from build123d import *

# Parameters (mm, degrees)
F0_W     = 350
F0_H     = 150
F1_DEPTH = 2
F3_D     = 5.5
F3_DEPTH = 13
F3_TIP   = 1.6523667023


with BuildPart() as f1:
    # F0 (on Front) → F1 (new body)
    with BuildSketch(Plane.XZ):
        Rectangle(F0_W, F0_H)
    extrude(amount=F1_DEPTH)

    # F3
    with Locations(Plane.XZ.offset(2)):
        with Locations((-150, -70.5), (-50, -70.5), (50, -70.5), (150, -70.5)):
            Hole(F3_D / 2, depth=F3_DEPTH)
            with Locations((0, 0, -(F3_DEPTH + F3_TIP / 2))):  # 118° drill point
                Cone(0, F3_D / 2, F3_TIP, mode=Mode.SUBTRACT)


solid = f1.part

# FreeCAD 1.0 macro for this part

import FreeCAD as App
import Part
import Sketcher

doc = App.newDocument("Part")
body = doc.addObject("PartDesign::Body", "Body")

# Sketch on XZ plane
sketch1 = body.newObject("Sketcher::SketchObject", "Sketch")
sketch1.AttachmentSupport = (doc.getObject("XZ_Plane"), [""])
sketch1.MapMode = "FlatFace"
sketch1.addGeometry(Part.LineSegment(App.Vector(-175, 75, 0), App.Vector(-175, -75, 0)), False)
sketch1.addGeometry(Part.LineSegment(App.Vector(-175, -75, 0), App.Vector(175, -75, 0)), False)
sketch1.addGeometry(Part.LineSegment(App.Vector(175, -75, 0), App.Vector(175, 75, 0)), False)
sketch1.addGeometry(Part.LineSegment(App.Vector(175, 75, 0), App.Vector(-175, 75, 0)), False)
sketch1.addConstraint(Sketcher.Constraint("Coincident", 0, 2, 1, 1))
sketch1.addConstraint(Sketcher.Constraint("Coincident", 1, 2, 2, 1))
sketch1.addConstraint(Sketcher.Constraint("Coincident", 2, 2, 3, 1))
sketch1.addConstraint(Sketcher.Constraint("Coincident", 3, 2, 0, 1))
sketch1.addConstraint(Sketcher.Constraint("Vertical", 0))
sketch1.addConstraint(Sketcher.Constraint("Horizontal", 1))
sketch1.addConstraint(Sketcher.Constraint("Vertical", 2))
sketch1.addConstraint(Sketcher.Constraint("Horizontal", 3))
sketch1.addConstraint(Sketcher.Constraint("Symmetric", 0, 2, 2, 2, -1, 1))
sketch1.addConstraint(Sketcher.Constraint("DistanceX", 1, 1, 1, 2, 350.0))
sketch1.addConstraint(Sketcher.Constraint("DistanceY", 0, 2, 0, 1, 150.0))
pad1 = body.newObject("PartDesign::Pad", "Pad")
pad1.Profile = sketch1
pad1.Length = 2

# Sketch on XZ plane
sketch2 = body.newObject("Sketcher::SketchObject", "Sketch001")
sketch2.AttachmentSupport = (doc.getObject("XZ_Plane"), [""])
sketch2.MapMode = "FlatFace"
sketch2.AttachmentOffset = App.Placement(App.Vector(0, 0, 2), App.Rotation())
sketch2.addGeometry(Part.Circle(App.Vector(-150, -70.5, 0), App.Vector(0, 0, 1), 2.8), False)
sketch2.addGeometry(Part.Circle(App.Vector(-50, -70.5, 0), App.Vector(0, 0, 1), 2.8), False)
sketch2.addGeometry(Part.Circle(App.Vector(50, -70.5, 0), App.Vector(0, 0, 1), 2.8), False)
sketch2.addGeometry(Part.Circle(App.Vector(150, -70.5, 0), App.Vector(0, 0, 1), 2.8), False)
sketch2.addConstraint(Sketcher.Constraint("Equal", 0, 1))
sketch2.addConstraint(Sketcher.Constraint("Equal", 1, 2))
sketch2.addConstraint(Sketcher.Constraint("Equal", 2, 3))
sketch2.addConstraint(Sketcher.Constraint("Symmetric", 1, 3, 2, 3, -2))
sketch2.addConstraint(Sketcher.Constraint("Symmetric", 0, 3, 3, 3, -2))
sketch2.addConstraint(Sketcher.Constraint("Horizontal", 0, 3, 1, 3))
sketch2.addConstraint(Sketcher.Constraint("Diameter", 0, 5.5))
sketch2.addConstraint(Sketcher.Constraint("DistanceX", 0, 3, -1, 1, 150.0))
sketch2.addConstraint(Sketcher.Constraint("DistanceX", 1, 3, -1, 1, 50.0))
sketch2.addConstraint(Sketcher.Constraint("DistanceY", 0, 3, -1, 1, 70.5))
doc.recompute()
hole = body.newObject("PartDesign::Hole", "Hole")
hole.Profile = sketch2
hole.ThreadType = "None"
hole.Diameter = 5.5
hole.DepthType = "Dimension"
hole.Depth = 13
hole.DrillPoint = "Angled"
hole.DrillPointAngle = 118

doc.recompute()
